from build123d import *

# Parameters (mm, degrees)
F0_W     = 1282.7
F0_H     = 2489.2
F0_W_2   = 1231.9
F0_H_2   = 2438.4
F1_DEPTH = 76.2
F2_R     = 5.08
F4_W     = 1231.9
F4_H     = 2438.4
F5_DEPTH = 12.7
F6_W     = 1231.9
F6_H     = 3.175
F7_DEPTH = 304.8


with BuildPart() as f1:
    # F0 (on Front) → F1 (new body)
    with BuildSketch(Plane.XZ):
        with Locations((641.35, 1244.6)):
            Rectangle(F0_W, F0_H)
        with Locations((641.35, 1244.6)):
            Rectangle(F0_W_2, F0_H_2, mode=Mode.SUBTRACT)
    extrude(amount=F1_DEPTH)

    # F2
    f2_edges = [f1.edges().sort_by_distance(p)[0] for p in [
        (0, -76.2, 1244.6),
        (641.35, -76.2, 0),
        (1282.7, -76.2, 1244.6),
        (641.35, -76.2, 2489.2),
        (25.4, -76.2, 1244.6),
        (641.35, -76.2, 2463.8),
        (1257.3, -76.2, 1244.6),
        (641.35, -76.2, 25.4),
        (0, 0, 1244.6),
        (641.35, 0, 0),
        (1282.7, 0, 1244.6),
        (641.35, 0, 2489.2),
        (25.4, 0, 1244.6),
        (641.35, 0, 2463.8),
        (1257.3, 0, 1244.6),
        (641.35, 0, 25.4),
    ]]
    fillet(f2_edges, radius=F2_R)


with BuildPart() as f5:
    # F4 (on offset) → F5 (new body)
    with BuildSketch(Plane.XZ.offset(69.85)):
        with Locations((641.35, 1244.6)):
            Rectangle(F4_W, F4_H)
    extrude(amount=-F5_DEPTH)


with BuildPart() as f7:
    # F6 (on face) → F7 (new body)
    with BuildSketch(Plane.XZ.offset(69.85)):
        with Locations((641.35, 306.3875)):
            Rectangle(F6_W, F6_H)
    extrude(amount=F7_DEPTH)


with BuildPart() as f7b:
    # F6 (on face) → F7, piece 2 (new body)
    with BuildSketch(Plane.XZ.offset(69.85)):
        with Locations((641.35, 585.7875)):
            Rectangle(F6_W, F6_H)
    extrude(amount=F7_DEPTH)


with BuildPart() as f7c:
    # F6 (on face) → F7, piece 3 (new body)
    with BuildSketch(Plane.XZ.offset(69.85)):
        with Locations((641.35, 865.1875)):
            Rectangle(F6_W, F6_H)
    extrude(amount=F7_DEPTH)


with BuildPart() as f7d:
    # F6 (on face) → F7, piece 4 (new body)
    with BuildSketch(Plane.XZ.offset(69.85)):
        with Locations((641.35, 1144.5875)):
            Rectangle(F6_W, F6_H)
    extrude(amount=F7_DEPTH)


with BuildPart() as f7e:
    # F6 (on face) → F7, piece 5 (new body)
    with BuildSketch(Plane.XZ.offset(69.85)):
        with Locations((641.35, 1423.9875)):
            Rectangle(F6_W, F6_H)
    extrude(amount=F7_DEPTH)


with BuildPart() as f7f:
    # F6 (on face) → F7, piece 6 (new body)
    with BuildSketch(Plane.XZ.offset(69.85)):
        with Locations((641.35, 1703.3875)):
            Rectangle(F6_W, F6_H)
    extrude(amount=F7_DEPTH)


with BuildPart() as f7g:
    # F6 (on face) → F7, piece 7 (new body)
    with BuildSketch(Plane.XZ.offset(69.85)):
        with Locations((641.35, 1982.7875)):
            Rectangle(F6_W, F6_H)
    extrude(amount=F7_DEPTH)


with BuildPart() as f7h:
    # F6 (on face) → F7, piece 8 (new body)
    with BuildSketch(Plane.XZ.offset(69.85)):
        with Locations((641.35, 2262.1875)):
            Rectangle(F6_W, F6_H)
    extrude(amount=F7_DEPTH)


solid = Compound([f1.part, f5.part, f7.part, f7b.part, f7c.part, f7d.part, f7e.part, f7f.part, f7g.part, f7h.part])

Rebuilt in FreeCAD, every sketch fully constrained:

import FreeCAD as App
import Part
import Sketcher
from FreeCAD import Vector
Q = App.Units.Quantity


def edges_at(feature, points):
    """Names of the edges that pass closest to the given points."""
    edges = feature.Shape.Edges
    near = lambda p: min(range(len(edges)), key=lambda i: edges[i].distToShape(Part.Vertex(*p))[0])
    return sorted({f"Edge{near(p) + 1}" for p in points})

doc = App.newDocument("Part")
body = doc.addObject("PartDesign::Body", "Body")

sketch1 = body.newObject("Sketcher::SketchObject", "Sketch")
sketch1.AttachmentSupport = (doc.getObject("XZ_Plane"), [""])
sketch1.MapMode = "FlatFace"
sketch1.addGeometry([
    Part.LineSegment(Vector(0, 2489, 0), Vector(0, 0, 0)),
    Part.LineSegment(Vector(0, 0, 0), Vector(1283, 0, 0)),
    Part.LineSegment(Vector(1283, 0, 0), Vector(1283, 2489, 0)),
    Part.LineSegment(Vector(1283, 2489, 0), Vector(0, 2489, 0)),
    Part.LineSegment(Vector(1257, 25, 0), Vector(25, 25, 0)),
    Part.LineSegment(Vector(25, 25, 0), Vector(25, 2464, 0)),
    Part.LineSegment(Vector(25, 2464, 0), Vector(1257, 2464, 0)),
    Part.LineSegment(Vector(1257, 2464, 0), Vector(1257, 25, 0)),
], False)
sketch1.addConstraint([
    Sketcher.Constraint("Coincident", 0, 2, 1, 1),
    Sketcher.Constraint("Coincident", 1, 2, 2, 1),
    Sketcher.Constraint("Coincident", 2, 2, 3, 1),
    Sketcher.Constraint("Coincident", 3, 2, 0, 1),
    Sketcher.Constraint("Coincident", 4, 2, 5, 1),
    Sketcher.Constraint("Coincident", 5, 2, 6, 1),
    Sketcher.Constraint("Coincident", 6, 2, 7, 1),
    Sketcher.Constraint("Coincident", 7, 2, 4, 1),
    Sketcher.Constraint("Vertical", 0),
    Sketcher.Constraint("Horizontal", 1),
    Sketcher.Constraint("Vertical", 2),
    Sketcher.Constraint("Horizontal", 3),
    Sketcher.Constraint("Horizontal", 4),
    Sketcher.Constraint("Vertical", 5),
    Sketcher.Constraint("Horizontal", 6),
    Sketcher.Constraint("Vertical", 7),
    Sketcher.Constraint("Coincident", 0, 2, -1, 1),
    Sketcher.Constraint("DistanceY", 0, 2, 0, 1, Q("98 in")),
    Sketcher.Constraint("DistanceY", 5, 1, 5, 2, Q("96 in")),
    Sketcher.Constraint("DistanceX", 1, 1, 1, 2, Q("50.5 in")),
    Sketcher.Constraint("DistanceX", 4, 2, 4, 1, Q("48.5 in")),
    Sketcher.Constraint("DistanceX", -1, 1, 4, 2, Q("1 in")),
    Sketcher.Constraint("DistanceY", -1, 1, 4, 2, Q("1 in")),
])
pad1 = body.newObject("PartDesign::Pad", "Pad")
pad1.Profile = sketch1
pad1.Length = Q("3 in")
doc.recompute()

fillet = body.newObject("PartDesign::Fillet", "Fillet")
fillet.Base = (pad1, edges_at(pad1, [
    (0, -76.2, 1244.6),
    (641.35, -76.2, 0),
    (1282.7, -76.2, 1244.6),
    (641.35, -76.2, 2489.2),
    (25.4, -76.2, 1244.6),
    (641.35, -76.2, 2463.8),
    (1257.3, -76.2, 1244.6),
    (641.35, -76.2, 25.4),
    (0, 0, 1244.6),
    (641.35, 0, 0),
    (1282.7, 0, 1244.6),
    (641.35, 0, 2489.2),
    (25.4, 0, 1244.6),
    (641.35, 0, 2463.8),
    (1257.3, 0, 1244.6),
    (641.35, 0, 25.4),
]))
fillet.Radius = Q("0.2 in")
body2 = doc.addObject("PartDesign::Body", "Body001")

sketch2 = body2.newObject("Sketcher::SketchObject", "Sketch001")
sketch2.AttachmentSupport = (doc.getObject("XZ_Plane001"), [""])
sketch2.MapMode = "FlatFace"
sketch2.AttachmentOffset = App.Placement(Vector(0, 0, 2.75 * 25.4), App.Rotation())
sketch2.addGeometry([
    Part.LineSegment(Vector(25, 2464, 0), Vector(25, 25, 0)),
    Part.LineSegment(Vector(25, 25, 0), Vector(1257, 25, 0)),
    Part.LineSegment(Vector(1257, 25, 0), Vector(1257, 2464, 0)),
    Part.LineSegment(Vector(1257, 2464, 0), Vector(25, 2464, 0)),
], False)
sketch2.addConstraint([
    Sketcher.Constraint("Coincident", 0, 2, 1, 1),
    Sketcher.Constraint("Coincident", 1, 2, 2, 1),
    Sketcher.Constraint("Coincident", 2, 2, 3, 1),
    Sketcher.Constraint("Coincident", 3, 2, 0, 1),
    Sketcher.Constraint("Vertical", 0),
    Sketcher.Constraint("Horizontal", 1),
    Sketcher.Constraint("Vertical", 2),
    Sketcher.Constraint("Horizontal", 3),
    Sketcher.Constraint("DistanceY", 0, 2, 0, 1, Q("96 in")),
    Sketcher.Constraint("DistanceX", 1, 1, 1, 2, Q("48.5 in")),
    Sketcher.Constraint("DistanceX", -1, 1, 0, 2, Q("1 in")),
    Sketcher.Constraint("DistanceY", -1, 1, 0, 2, Q("1 in")),
])
pad2 = body2.newObject("PartDesign::Pad", "Pad001")
pad2.Profile = sketch2
pad2.Length = Q("0.5 in")
pad2.Reversed = True
body3 = doc.addObject("PartDesign::Body", "Body002")

sketch3 = body3.newObject("Sketcher::SketchObject", "Sketch002")
sketch3.AttachmentSupport = (doc.getObject("XZ_Plane002"), [""])
sketch3.MapMode = "FlatFace"
sketch3.AttachmentOffset = App.Placement(Vector(0, 0, 2.75 * 25.4), App.Rotation())
sketch3.addGeometry([
    Part.LineSegment(Vector(25.4, 308, 0), Vector(25.4, 304.8, 0)),
    Part.LineSegment(Vector(25.4, 304.8, 0), Vector(1257.3, 304.8, 0)),
    Part.LineSegment(Vector(1257.3, 304.8, 0), Vector(1257.3, 308, 0)),
    Part.LineSegment(Vector(1257.3, 308, 0), Vector(25.4, 308, 0)),
], False)
sketch3.addConstraint([
    Sketcher.Constraint("Coincident", 0, 2, 1, 1),
    Sketcher.Constraint("Coincident", 1, 2, 2, 1),
    Sketcher.Constraint("Coincident", 2, 2, 3, 1),
    Sketcher.Constraint("Coincident", 3, 2, 0, 1),
    Sketcher.Constraint("Vertical", 0),
    Sketcher.Constraint("Horizontal", 1),
    Sketcher.Constraint("Vertical", 2),
    Sketcher.Constraint("Horizontal", 3),
    Sketcher.Constraint("DistanceX", 1, 1, 1, 2, Q("48.5 in")),
    Sketcher.Constraint("DistanceX", -1, 1, 0, 2, Q("1 in")),
    Sketcher.Constraint("DistanceY", -1, 1, 0, 2, Q("12 in")),
    Sketcher.Constraint("DistanceY", 0, 2, 0, 1, Q("0.125 in")),
])
pad3 = body3.newObject("PartDesign::Pad", "Pad002")
pad3.Profile = sketch3
pad3.Length = Q("12 in")
body4 = doc.addObject("PartDesign::Body", "Body003")

sketch4 = body4.newObject("Sketcher::SketchObject", "Sketch003")
sketch4.AttachmentSupport = (doc.getObject("XZ_Plane003"), [""])
sketch4.MapMode = "FlatFace"
sketch4.AttachmentOffset = App.Placement(Vector(0, 0, 2.75 * 25.4), App.Rotation())
sketch4.addGeometry([
    Part.LineSegment(Vector(25.4, 587.4, 0), Vector(25.4, 584.2, 0)),
    Part.LineSegment(Vector(25.4, 584.2, 0), Vector(1257.3, 584.2, 0)),
    Part.LineSegment(Vector(1257.3, 584.2, 0), Vector(1257.3, 587.4, 0)),
    Part.LineSegment(Vector(1257.3, 587.4, 0), Vector(25.4, 587.4, 0)),
], False)
sketch4.addConstraint([
    Sketcher.Constraint("Coincident", 0, 2, 1, 1),
    Sketcher.Constraint("Coincident", 1, 2, 2, 1),
    Sketcher.Constraint("Coincident", 2, 2, 3, 1),
    Sketcher.Constraint("Coincident", 3, 2, 0, 1),
    Sketcher.Constraint("Vertical", 0),
    Sketcher.Constraint("Horizontal", 1),
    Sketcher.Constraint("Vertical", 2),
    Sketcher.Constraint("Horizontal", 3),
    Sketcher.Constraint("DistanceX", 1, 1, 1, 2, Q("48.5 in")),
    Sketcher.Constraint("DistanceX", -1, 1, 0, 2, Q("1 in")),
    Sketcher.Constraint("DistanceY", -1, 1, 0, 2, Q("23 in")),
    Sketcher.Constraint("DistanceY", 0, 2, 0, 1, Q("0.125 in")),
])
pad4 = body4.newObject("PartDesign::Pad", "Pad003")
pad4.Profile = sketch4
pad4.Length = Q("12 in")
body5 = doc.addObject("PartDesign::Body", "Body004")

sketch5 = body5.newObject("Sketcher::SketchObject", "Sketch004")
sketch5.AttachmentSupport = (doc.getObject("XZ_Plane004"), [""])
sketch5.MapMode = "FlatFace"
sketch5.AttachmentOffset = App.Placement(Vector(0, 0, 2.75 * 25.4), App.Rotation())
sketch5.addGeometry([
    Part.LineSegment(Vector(25.4, 866.8, 0), Vector(25.4, 863.6, 0)),
    Part.LineSegment(Vector(25.4, 863.6, 0), Vector(1257.3, 863.6, 0)),
    Part.LineSegment(Vector(1257.3, 863.6, 0), Vector(1257.3, 866.8, 0)),
    Part.LineSegment(Vector(1257.3, 866.8, 0), Vector(25.4, 866.8, 0)),
], False)
sketch5.addConstraint([
    Sketcher.Constraint("Coincident", 0, 2, 1, 1),
    Sketcher.Constraint("Coincident", 1, 2, 2, 1),
    Sketcher.Constraint("Coincident", 2, 2, 3, 1),
    Sketcher.Constraint("Coincident", 3, 2, 0, 1),
    Sketcher.Constraint("Vertical", 0),
    Sketcher.Constraint("Horizontal", 1),
    Sketcher.Constraint("Vertical", 2),
    Sketcher.Constraint("Horizontal", 3),
    Sketcher.Constraint("DistanceX", 1, 1, 1, 2, Q("48.5 in")),
    Sketcher.Constraint("DistanceX", -1, 1, 0, 2, Q("1 in")),
    Sketcher.Constraint("DistanceY", -1, 1, 0, 2, Q("34 in")),
    Sketcher.Constraint("DistanceY", 0, 2, 0, 1, Q("0.125 in")),
])
pad5 = body5.newObject("PartDesign::Pad", "Pad004")
pad5.Profile = sketch5
pad5.Length = Q("12 in")
body6 = doc.addObject("PartDesign::Body", "Body005")

sketch6 = body6.newObject("Sketcher::SketchObject", "Sketch005")
sketch6.AttachmentSupport = (doc.getObject("XZ_Plane005"), [""])
sketch6.MapMode = "FlatFace"
sketch6.AttachmentOffset = App.Placement(Vector(0, 0, 2.75 * 25.4), App.Rotation())
sketch6.addGeometry([
    Part.LineSegment(Vector(25.4, 1146.2, 0), Vector(25.4, 1143, 0)),
    Part.LineSegment(Vector(25.4, 1143, 0), Vector(1257.3, 1143, 0)),
    Part.LineSegment(Vector(1257.3, 1143, 0), Vector(1257.3, 1146.2, 0)),
    Part.LineSegment(Vector(1257.3, 1146.2, 0), Vector(25.4, 1146.2, 0)),
], False)
sketch6.addConstraint([
    Sketcher.Constraint("Coincident", 0, 2, 1, 1),
    Sketcher.Constraint("Coincident", 1, 2, 2, 1),
    Sketcher.Constraint("Coincident", 2, 2, 3, 1),
    Sketcher.Constraint("Coincident", 3, 2, 0, 1),
    Sketcher.Constraint("Vertical", 0),
    Sketcher.Constraint("Horizontal", 1),
    Sketcher.Constraint("Vertical", 2),
    Sketcher.Constraint("Horizontal", 3),
    Sketcher.Constraint("DistanceX", 1, 1, 1, 2, Q("48.5 in")),
    Sketcher.Constraint("DistanceX", -1, 1, 0, 2, Q("1 in")),
    Sketcher.Constraint("DistanceY", -1, 1, 0, 2, Q("45 in")),
    Sketcher.Constraint("DistanceY", 0, 2, 0, 1, Q("0.125 in")),
])
pad6 = body6.newObject("PartDesign::Pad", "Pad005")
pad6.Profile = sketch6
pad6.Length = Q("12 in")
body7 = doc.addObject("PartDesign::Body", "Body006")

sketch7 = body7.newObject("Sketcher::SketchObject", "Sketch006")
sketch7.AttachmentSupport = (doc.getObject("XZ_Plane006"), [""])
sketch7.MapMode = "FlatFace"
sketch7.AttachmentOffset = App.Placement(Vector(0, 0, 2.75 * 25.4), App.Rotation())
sketch7.addGeometry([
    Part.LineSegment(Vector(25.4, 1425.6, 0), Vector(25.4, 1422.4, 0)),
    Part.LineSegment(Vector(25.4, 1422.4, 0), Vector(1257.3, 1422.4, 0)),
    Part.LineSegment(Vector(1257.3, 1422.4, 0), Vector(1257.3, 1425.6, 0)),
    Part.LineSegment(Vector(1257.3, 1425.6, 0), Vector(25.4, 1425.6, 0)),
], False)
sketch7.addConstraint([
    Sketcher.Constraint("Coincident", 0, 2, 1, 1),
    Sketcher.Constraint("Coincident", 1, 2, 2, 1),
    Sketcher.Constraint("Coincident", 2, 2, 3, 1),
    Sketcher.Constraint("Coincident", 3, 2, 0, 1),
    Sketcher.Constraint("Vertical", 0),
    Sketcher.Constraint("Horizontal", 1),
    Sketcher.Constraint("Vertical", 2),
    Sketcher.Constraint("Horizontal", 3),
    Sketcher.Constraint("DistanceX", 1, 1, 1, 2, Q("48.5 in")),
    Sketcher.Constraint("DistanceX", -1, 1, 0, 2, Q("1 in")),
    Sketcher.Constraint("DistanceY", -1, 1, 0, 2, Q("56 in")),
    Sketcher.Constraint("DistanceY", 0, 2, 0, 1, Q("0.125 in")),
])
pad7 = body7.newObject("PartDesign::Pad", "Pad006")
pad7.Profile = sketch7
pad7.Length = Q("12 in")
body8 = doc.addObject("PartDesign::Body", "Body007")

sketch8 = body8.newObject("Sketcher::SketchObject", "Sketch007")
sketch8.AttachmentSupport = (doc.getObject("XZ_Plane007"), [""])
sketch8.MapMode = "FlatFace"
sketch8.AttachmentOffset = App.Placement(Vector(0, 0, 2.75 * 25.4), App.Rotation())
sketch8.addGeometry([
    Part.LineSegment(Vector(25.4, 1705, 0), Vector(25.4, 1701.8, 0)),
    Part.LineSegment(Vector(25.4, 1701.8, 0), Vector(1257.3, 1701.8, 0)),
    Part.LineSegment(Vector(1257.3, 1701.8, 0), Vector(1257.3, 1705, 0)),
    Part.LineSegment(Vector(1257.3, 1705, 0), Vector(25.4, 1705, 0)),
], False)
sketch8.addConstraint([
    Sketcher.Constraint("Coincident", 0, 2, 1, 1),
    Sketcher.Constraint("Coincident", 1, 2, 2, 1),
    Sketcher.Constraint("Coincident", 2, 2, 3, 1),
    Sketcher.Constraint("Coincident", 3, 2, 0, 1),
    Sketcher.Constraint("Vertical", 0),
    Sketcher.Constraint("Horizontal", 1),
    Sketcher.Constraint("Vertical", 2),
    Sketcher.Constraint("Horizontal", 3),
    Sketcher.Constraint("DistanceX", 1, 1, 1, 2, Q("48.5 in")),
    Sketcher.Constraint("DistanceX", -1, 1, 0, 2, Q("1 in")),
    Sketcher.Constraint("DistanceY", -1, 1, 0, 2, Q("67 in")),
    Sketcher.Constraint("DistanceY", 0, 2, 0, 1, Q("0.125 in")),
])
pad8 = body8.newObject("PartDesign::Pad", "Pad007")
pad8.Profile = sketch8
pad8.Length = Q("12 in")
body9 = doc.addObject("PartDesign::Body", "Body008")

sketch9 = body9.newObject("Sketcher::SketchObject", "Sketch008")
sketch9.AttachmentSupport = (doc.getObject("XZ_Plane008"), [""])
sketch9.MapMode = "FlatFace"
sketch9.AttachmentOffset = App.Placement(Vector(0, 0, 2.75 * 25.4), App.Rotation())
sketch9.addGeometry([
    Part.LineSegment(Vector(25.4, 1984.4, 0), Vector(25.4, 1981.2, 0)),
    Part.LineSegment(Vector(25.4, 1981.2, 0), Vector(1257.3, 1981.2, 0)),
    Part.LineSegment(Vector(1257.3, 1981.2, 0), Vector(1257.3, 1984.4, 0)),
    Part.LineSegment(Vector(1257.3, 1984.4, 0), Vector(25.4, 1984.4, 0)),
], False)
sketch9.addConstraint([
    Sketcher.Constraint("Coincident", 0, 2, 1, 1),
    Sketcher.Constraint("Coincident", 1, 2, 2, 1),
    Sketcher.Constraint("Coincident", 2, 2, 3, 1),
    Sketcher.Constraint("Coincident", 3, 2, 0, 1),
    Sketcher.Constraint("Vertical", 0),
    Sketcher.Constraint("Horizontal", 1),
    Sketcher.Constraint("Vertical", 2),
    Sketcher.Constraint("Horizontal", 3),
    Sketcher.Constraint("DistanceX", 1, 1, 1, 2, Q("48.5 in")),
    Sketcher.Constraint("DistanceX", -1, 1, 0, 2, Q("1 in")),
    Sketcher.Constraint("DistanceY", -1, 1, 0, 2, Q("78 in")),
    Sketcher.Constraint("DistanceY", 0, 2, 0, 1, Q("0.125 in")),
])
pad9 = body9.newObject("PartDesign::Pad", "Pad008")
pad9.Profile = sketch9
pad9.Length = Q("12 in")
body10 = doc.addObject("PartDesign::Body", "Body009")

sketch10 = body10.newObject("Sketcher::SketchObject", "Sketch009")
sketch10.AttachmentSupport = (doc.getObject("XZ_Plane009"), [""])
sketch10.MapMode = "FlatFace"
sketch10.AttachmentOffset = App.Placement(Vector(0, 0, 2.75 * 25.4), App.Rotation())
sketch10.addGeometry([
    Part.LineSegment(Vector(25.4, 2263.8, 0), Vector(25.4, 2260.6, 0)),
    Part.LineSegment(Vector(25.4, 2260.6, 0), Vector(1257.3, 2260.6, 0)),
    Part.LineSegment(Vector(1257.3, 2260.6, 0), Vector(1257.3, 2263.8, 0)),
    Part.LineSegment(Vector(1257.3, 2263.8, 0), Vector(25.4, 2263.8, 0)),
], False)
sketch10.addConstraint([
    Sketcher.Constraint("Coincident", 0, 2, 1, 1),
    Sketcher.Constraint("Coincident", 1, 2, 2, 1),
    Sketcher.Constraint("Coincident", 2, 2, 3, 1),
    Sketcher.Constraint("Coincident", 3, 2, 0, 1),
    Sketcher.Constraint("Vertical", 0),
    Sketcher.Constraint("Horizontal", 1),
    Sketcher.Constraint("Vertical", 2),
    Sketcher.Constraint("Horizontal", 3),
    Sketcher.Constraint("DistanceX", 1, 1, 1, 2, Q("48.5 in")),
    Sketcher.Constraint("DistanceX", -1, 1, 0, 2, Q("1 in")),
    Sketcher.Constraint("DistanceY", -1, 1, 0, 2, Q("89 in")),
    Sketcher.Constraint("DistanceY", 0, 2, 0, 1, Q("0.125 in")),
])
pad10 = body10.newObject("PartDesign::Pad", "Pad009")
pad10.Profile = sketch10
pad10.Length = Q("12 in")

doc.recompute()
